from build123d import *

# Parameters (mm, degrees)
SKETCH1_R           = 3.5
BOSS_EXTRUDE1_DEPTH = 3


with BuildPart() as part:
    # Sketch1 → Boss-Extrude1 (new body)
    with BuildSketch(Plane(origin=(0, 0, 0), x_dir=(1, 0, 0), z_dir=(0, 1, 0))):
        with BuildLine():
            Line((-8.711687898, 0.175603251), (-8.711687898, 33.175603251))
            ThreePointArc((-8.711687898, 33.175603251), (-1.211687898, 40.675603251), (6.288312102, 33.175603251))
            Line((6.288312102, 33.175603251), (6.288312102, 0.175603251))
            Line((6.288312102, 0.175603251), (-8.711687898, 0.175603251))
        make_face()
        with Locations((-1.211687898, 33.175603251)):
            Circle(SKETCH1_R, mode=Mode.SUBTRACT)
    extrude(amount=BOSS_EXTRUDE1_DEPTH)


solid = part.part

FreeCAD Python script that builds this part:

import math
import FreeCAD as App
import Part
import Sketcher
from FreeCAD import Vector
Q = App.Units.Quantity

doc = App.newDocument("Part")
body = doc.addObject("PartDesign::Body", "Body")

# Sketch on XZ plane
sketch1 = body.newObject("Sketcher::SketchObject", "Sketch")
sketch1.AttachmentSupport = (doc.getObject("XZ_Plane"), [""])
sketch1.MapMode = "FlatFace"
sketch1.addGeometry([
    Part.LineSegment(Vector(-8.7, -33.2, 0), Vector(-8.7, -0.2, 0)),  # 0
    Part.LineSegment(Vector(-8.7, -0.2, 0), Vector(6.3, -0.2, 0)),  # 1
    Part.LineSegment(Vector(6.3, -0.2, 0), Vector(6.3, -33.2, 0)),  # 2
    Part.ArcOfCircle(Part.Circle(Vector(-1.2, -33.2, 0), Vector(0, 0, 1), 7.5), math.radians(180), math.radians(360)),  # 3
    Part.Circle(Vector(-1.2, -33.2, 0), Vector(0, 0, 1), 3.5),  # 4
], False)
sketch1.addConstraint([
    Sketcher.Constraint("Coincident", 0, 2, 1, 1),
    Sketcher.Constraint("Coincident", 1, 2, 2, 1),
    Sketcher.Constraint("Tangent", 2, 2, 3, 2),
    Sketcher.Constraint("Tangent", 3, 1, 0, 1),
    Sketcher.Constraint("Vertical", 0),
    Sketcher.Constraint("Horizontal", 1),
    Sketcher.Constraint("Vertical", 2),
    Sketcher.Constraint("Coincident", 4, 3, 3, 3),
    Sketcher.Constraint("Diameter", 4, Q("7 mm")),
    Sketcher.Constraint("Radius", 3, Q("7.5 mm")),
    Sketcher.Constraint("DistanceY", 0, 1, 0, 2, Q("33 mm")),
    Sketcher.Constraint("DistanceX", 3, 3, -1, 1, Q("1.211688 mm")),
    Sketcher.Constraint("DistanceY", 3, 3, -1, 1, Q("33.175603 mm")),
])
pad1 = body.newObject("PartDesign::Pad", "Pad")
pad1.Profile = sketch1
pad1.Length = 3
pad1.Reversed = True

doc.recompute()
